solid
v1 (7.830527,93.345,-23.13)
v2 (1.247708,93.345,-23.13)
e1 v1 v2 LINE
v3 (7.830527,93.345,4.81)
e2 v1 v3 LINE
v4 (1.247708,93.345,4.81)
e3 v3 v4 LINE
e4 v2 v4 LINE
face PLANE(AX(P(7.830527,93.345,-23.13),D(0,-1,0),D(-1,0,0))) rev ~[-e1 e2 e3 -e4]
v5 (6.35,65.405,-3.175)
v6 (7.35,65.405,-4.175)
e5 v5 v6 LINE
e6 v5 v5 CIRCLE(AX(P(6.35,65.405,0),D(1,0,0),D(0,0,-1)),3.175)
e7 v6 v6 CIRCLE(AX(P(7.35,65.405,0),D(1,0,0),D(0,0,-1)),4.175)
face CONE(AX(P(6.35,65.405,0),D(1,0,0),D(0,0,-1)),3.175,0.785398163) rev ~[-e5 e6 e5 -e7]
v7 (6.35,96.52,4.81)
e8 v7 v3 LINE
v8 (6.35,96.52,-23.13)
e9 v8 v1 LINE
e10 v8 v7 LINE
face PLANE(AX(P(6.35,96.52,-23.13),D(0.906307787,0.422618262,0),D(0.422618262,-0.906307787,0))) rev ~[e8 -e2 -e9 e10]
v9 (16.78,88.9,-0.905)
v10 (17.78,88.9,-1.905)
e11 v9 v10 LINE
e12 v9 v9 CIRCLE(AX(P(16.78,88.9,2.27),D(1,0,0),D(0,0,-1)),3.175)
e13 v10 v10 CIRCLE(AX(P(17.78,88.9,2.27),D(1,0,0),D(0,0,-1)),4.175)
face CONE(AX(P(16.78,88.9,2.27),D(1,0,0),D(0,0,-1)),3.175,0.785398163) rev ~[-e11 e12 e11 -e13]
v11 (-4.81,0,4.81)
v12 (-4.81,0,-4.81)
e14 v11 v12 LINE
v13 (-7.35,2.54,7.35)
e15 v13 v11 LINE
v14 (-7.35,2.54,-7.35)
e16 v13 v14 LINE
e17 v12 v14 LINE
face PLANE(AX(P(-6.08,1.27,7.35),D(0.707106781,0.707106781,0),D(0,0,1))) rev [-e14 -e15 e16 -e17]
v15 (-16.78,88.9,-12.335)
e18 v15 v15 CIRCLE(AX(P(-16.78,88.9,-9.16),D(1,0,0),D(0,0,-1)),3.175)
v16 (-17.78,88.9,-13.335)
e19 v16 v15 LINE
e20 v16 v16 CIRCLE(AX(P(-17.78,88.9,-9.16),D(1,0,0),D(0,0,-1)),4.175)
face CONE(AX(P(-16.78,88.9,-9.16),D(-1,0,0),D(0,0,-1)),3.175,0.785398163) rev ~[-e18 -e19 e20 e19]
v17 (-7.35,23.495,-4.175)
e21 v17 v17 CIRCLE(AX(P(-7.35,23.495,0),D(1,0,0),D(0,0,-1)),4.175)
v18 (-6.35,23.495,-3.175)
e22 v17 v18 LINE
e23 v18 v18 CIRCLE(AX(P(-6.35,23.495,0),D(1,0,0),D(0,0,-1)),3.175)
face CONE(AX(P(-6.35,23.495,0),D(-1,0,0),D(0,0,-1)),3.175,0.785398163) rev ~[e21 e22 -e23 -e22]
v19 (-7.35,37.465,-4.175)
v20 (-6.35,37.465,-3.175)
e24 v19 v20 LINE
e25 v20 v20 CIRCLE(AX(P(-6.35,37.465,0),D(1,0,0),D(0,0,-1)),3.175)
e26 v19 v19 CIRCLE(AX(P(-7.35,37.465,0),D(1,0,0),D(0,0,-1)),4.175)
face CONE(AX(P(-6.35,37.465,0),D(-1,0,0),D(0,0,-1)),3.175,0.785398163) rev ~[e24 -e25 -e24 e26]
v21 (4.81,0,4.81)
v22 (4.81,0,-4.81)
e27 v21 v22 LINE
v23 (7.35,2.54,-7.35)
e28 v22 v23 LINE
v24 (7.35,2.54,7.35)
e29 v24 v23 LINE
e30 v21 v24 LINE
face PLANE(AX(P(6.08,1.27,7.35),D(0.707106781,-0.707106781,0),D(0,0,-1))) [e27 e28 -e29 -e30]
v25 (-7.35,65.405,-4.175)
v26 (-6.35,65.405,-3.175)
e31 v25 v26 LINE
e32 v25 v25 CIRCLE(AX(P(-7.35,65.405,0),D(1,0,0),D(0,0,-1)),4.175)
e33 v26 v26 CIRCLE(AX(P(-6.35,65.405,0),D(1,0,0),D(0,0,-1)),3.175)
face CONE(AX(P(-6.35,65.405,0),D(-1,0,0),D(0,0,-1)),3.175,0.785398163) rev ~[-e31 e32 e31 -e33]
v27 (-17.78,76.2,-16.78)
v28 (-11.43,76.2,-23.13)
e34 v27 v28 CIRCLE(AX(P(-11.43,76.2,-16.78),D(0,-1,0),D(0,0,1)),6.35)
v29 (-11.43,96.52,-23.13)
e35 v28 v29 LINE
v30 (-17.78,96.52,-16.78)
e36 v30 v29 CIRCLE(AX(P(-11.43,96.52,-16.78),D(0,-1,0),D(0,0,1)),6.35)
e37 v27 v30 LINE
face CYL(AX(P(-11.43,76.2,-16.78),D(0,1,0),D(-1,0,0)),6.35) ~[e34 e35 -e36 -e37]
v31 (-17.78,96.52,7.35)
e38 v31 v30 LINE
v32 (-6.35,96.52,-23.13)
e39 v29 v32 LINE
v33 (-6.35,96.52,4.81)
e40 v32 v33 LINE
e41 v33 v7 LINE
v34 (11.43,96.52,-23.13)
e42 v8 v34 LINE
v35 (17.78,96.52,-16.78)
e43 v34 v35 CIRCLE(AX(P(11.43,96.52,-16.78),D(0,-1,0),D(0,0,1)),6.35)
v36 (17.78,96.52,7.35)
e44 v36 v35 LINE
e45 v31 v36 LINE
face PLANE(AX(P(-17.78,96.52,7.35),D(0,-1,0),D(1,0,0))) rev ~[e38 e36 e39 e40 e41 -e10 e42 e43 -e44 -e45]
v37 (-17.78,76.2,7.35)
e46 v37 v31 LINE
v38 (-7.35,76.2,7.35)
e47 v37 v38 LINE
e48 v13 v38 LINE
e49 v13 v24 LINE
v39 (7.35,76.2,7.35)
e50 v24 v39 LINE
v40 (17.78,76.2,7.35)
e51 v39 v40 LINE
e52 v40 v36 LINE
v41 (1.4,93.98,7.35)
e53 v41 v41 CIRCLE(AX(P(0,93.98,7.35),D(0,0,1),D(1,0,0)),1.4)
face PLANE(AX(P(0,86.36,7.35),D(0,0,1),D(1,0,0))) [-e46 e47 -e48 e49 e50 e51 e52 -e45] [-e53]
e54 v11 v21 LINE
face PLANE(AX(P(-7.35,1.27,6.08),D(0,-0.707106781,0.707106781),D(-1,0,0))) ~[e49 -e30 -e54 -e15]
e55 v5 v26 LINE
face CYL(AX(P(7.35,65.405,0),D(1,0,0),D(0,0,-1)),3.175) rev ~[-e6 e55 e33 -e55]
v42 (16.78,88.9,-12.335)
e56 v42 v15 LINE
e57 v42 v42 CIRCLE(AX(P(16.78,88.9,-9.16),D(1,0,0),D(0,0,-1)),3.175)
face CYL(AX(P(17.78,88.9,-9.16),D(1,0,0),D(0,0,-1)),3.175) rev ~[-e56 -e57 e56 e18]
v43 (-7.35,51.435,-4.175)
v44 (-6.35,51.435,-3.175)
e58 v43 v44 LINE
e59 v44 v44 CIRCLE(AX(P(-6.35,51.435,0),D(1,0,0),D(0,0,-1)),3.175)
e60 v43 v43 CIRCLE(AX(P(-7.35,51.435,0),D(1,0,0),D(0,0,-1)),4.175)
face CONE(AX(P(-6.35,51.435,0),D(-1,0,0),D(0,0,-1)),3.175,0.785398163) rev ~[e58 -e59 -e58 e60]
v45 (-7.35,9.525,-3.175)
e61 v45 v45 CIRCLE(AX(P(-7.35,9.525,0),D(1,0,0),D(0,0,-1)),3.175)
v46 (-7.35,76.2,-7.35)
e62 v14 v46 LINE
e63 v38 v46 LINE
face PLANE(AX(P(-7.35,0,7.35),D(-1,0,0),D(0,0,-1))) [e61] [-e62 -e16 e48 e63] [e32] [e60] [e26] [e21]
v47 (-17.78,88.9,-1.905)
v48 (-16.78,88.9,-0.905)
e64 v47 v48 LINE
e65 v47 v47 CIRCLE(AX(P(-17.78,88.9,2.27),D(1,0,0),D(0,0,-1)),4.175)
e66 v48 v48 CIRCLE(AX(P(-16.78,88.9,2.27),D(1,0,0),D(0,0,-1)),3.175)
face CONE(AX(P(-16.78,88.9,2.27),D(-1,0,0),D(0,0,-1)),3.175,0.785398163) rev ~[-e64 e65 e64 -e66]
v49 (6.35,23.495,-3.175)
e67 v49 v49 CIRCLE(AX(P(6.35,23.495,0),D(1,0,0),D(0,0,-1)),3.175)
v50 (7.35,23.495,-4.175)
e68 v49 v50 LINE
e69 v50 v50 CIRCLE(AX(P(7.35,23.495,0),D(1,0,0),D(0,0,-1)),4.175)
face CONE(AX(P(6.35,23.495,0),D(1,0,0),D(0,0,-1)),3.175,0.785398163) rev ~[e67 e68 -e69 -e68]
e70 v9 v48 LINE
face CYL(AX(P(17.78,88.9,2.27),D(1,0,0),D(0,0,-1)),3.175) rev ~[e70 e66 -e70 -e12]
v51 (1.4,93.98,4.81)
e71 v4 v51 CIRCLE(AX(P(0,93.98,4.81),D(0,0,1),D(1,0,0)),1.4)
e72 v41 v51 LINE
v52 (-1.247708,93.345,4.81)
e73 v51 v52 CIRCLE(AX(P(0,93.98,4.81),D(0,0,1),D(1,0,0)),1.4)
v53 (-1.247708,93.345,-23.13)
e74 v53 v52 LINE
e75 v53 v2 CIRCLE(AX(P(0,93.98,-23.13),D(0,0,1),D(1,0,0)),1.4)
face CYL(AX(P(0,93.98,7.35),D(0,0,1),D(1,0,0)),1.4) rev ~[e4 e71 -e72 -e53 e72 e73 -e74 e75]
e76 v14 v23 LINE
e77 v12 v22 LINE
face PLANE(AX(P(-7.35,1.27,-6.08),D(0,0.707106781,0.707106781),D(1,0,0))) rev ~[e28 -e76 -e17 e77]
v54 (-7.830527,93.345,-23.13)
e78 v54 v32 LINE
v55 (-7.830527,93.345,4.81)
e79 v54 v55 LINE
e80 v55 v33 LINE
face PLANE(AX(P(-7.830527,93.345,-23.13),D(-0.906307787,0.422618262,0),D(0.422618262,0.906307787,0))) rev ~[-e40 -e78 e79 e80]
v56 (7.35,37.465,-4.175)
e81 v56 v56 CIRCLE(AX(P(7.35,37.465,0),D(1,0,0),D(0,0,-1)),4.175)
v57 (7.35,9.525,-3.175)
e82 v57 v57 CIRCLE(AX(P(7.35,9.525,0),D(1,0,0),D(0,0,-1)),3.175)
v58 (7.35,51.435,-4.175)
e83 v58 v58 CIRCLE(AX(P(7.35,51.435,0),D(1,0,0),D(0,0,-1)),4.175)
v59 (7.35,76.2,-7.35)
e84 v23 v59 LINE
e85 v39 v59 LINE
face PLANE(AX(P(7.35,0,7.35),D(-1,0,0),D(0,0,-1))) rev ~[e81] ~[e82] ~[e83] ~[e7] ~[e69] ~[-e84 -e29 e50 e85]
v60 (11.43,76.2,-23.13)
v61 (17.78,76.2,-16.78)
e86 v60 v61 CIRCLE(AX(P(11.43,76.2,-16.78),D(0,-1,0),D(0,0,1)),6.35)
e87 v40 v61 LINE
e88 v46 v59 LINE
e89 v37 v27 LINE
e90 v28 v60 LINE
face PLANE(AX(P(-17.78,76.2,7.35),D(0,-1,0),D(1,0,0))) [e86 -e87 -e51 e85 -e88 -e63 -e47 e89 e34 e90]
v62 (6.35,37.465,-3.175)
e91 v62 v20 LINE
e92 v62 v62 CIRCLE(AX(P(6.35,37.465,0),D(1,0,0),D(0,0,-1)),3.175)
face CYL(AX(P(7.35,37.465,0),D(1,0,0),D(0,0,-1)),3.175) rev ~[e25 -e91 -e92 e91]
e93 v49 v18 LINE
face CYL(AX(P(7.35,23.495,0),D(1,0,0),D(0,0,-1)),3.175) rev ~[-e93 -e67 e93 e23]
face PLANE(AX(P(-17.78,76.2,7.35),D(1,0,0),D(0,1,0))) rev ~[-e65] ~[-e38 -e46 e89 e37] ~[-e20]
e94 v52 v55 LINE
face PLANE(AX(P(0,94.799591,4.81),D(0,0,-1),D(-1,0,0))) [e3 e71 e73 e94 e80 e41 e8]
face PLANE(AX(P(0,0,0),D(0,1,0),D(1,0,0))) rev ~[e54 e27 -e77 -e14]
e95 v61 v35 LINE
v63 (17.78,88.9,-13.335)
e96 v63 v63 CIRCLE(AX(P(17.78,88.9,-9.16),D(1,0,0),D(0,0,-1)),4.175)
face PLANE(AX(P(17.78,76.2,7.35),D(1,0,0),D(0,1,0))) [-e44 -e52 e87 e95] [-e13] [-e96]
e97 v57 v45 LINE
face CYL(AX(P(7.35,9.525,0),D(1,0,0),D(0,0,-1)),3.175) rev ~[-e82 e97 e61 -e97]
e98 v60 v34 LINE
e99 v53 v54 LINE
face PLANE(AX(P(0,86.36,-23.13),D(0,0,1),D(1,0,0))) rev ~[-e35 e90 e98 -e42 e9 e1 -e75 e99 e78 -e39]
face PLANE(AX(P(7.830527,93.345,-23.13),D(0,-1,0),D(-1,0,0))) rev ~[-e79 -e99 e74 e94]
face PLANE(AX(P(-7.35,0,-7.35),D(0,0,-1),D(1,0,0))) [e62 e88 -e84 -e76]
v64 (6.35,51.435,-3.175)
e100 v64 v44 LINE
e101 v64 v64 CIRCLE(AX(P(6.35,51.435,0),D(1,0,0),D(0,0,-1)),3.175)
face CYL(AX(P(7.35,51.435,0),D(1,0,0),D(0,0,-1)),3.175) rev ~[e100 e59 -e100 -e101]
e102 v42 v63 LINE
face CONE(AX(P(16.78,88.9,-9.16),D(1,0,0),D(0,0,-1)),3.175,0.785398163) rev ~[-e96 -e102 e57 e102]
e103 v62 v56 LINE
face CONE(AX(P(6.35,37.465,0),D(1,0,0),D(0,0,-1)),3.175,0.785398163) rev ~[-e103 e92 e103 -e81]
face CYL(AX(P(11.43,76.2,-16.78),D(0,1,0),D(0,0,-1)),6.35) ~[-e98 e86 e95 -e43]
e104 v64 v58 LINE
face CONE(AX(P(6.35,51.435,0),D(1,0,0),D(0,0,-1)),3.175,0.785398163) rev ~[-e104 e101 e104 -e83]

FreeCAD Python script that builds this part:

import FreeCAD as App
import Part
import Sketcher

V = App.Vector
Q = App.Units.Quantity


def edges_at(feature, points):
    """Names of the edges that pass closest to the given points."""
    edges = feature.Shape.Edges
    near = lambda p: min(range(len(edges)), key=lambda i: edges[i].distToShape(Part.Vertex(*p))[0])
    return sorted({f"Edge{near(p) + 1}" for p in points})

doc = App.newDocument("Part")
body = doc.addObject("PartDesign::Body", "Body")

sketch1 = body.newObject("Sketcher::SketchObject", "Sketch")
sketch1.AttachmentSupport = (doc.getObject("XZ_Plane"), [""])
sketch1.MapMode = "FlatFace"
sketch1.addGeometry([
    Part.LineSegment(V(-7, -7, 0), V(-7, 7, 0)),
    Part.LineSegment(V(-7, 7, 0), V(7, 7, 0)),
    Part.LineSegment(V(7, 7, 0), V(7, -7, 0)),
    Part.LineSegment(V(7, -7, 0), V(-7, -7, 0)),
], False)
sketch1.addConstraint([
    Sketcher.Constraint("Coincident", 0, 2, 1, 1),
    Sketcher.Constraint("Coincident", 1, 2, 2, 1),
    Sketcher.Constraint("Coincident", 2, 2, 3, 1),
    Sketcher.Constraint("Coincident", 3, 2, 0, 1),
    Sketcher.Constraint("Vertical", 0),
    Sketcher.Constraint("Horizontal", 1),
    Sketcher.Constraint("Vertical", 2),
    Sketcher.Constraint("Horizontal", 3),
    Sketcher.Constraint("Symmetric", 0, 2, 2, 2, -1, 1),
    Sketcher.Constraint("Equal", 3, 0),
    Sketcher.Constraint("DistanceX", 1, 1, 1, 2, 14.7),
])
pad1 = body.newObject("PartDesign::Pad", "Pad")
pad1.Profile = sketch1
pad1.Length = Q("3 in")
pad1.Reversed = True

sketch2 = body.newObject("Sketcher::SketchObject", "Sketch001")
sketch2.AttachmentSupport = (doc.getObject("YZ_Plane"), [""])
sketch2.MapMode = "FlatFace"
sketch2.AttachmentOffset = App.Placement(V(0, 0, 7.35), App.Rotation())
sketch2.addGeometry([
    Part.Circle(V(65.4, 0, 0), V(0, 0, 1), 3.2),
    Part.Circle(V(51.4, 0, 0), V(0, 0, 1), 3.2),
    Part.Circle(V(37.5, 0, 0), V(0, 0, 1), 3.2),
    Part.Circle(V(23.5, 0, 0), V(0, 0, 1), 3.2),
    Part.Circle(V(9.5, 0, 0), V(0, 0, 1), 3.2),
], False)
sketch2.addConstraint([
    Sketcher.Constraint("Equal", 0, 1),
    Sketcher.Constraint("Equal", 1, 2),
    Sketcher.Constraint("Equal", 2, 3),
    Sketcher.Constraint("Equal", 3, 4),
    Sketcher.Constraint("PointOnObject", 0, 3, -1),
    Sketcher.Constraint("PointOnObject", 1, 3, -1),
    Sketcher.Constraint("PointOnObject", 2, 3, -1),
    Sketcher.Constraint("PointOnObject", 3, 3, -1),
    Sketcher.Constraint("PointOnObject", 4, 3, -1),
    Sketcher.Constraint("Diameter", 0, Q("0.25 in")),
    Sketcher.Constraint("DistanceX", 2, 3, 0, 3, Q("1.1 in")),
    Sketcher.Constraint("DistanceX", 3, 3, 1, 3, Q("1.1 in")),
    Sketcher.Constraint("DistanceX", 4, 3, 2, 3, Q("1.1 in")),
    Sketcher.Constraint("DistanceX", 1, 3, 0, 3, Q("0.55 in")),
    Sketcher.Constraint("DistanceX", -1, 1, 0, 3, Q("2.575 in")),
])
pocket1 = body.newObject("PartDesign::Pocket", "Pocket")
pocket1.Profile = sketch2
pocket1.Type = "ThroughAll"
doc.recompute()

chamfer = body.newObject("PartDesign::Chamfer", "Chamfer")
chamfer.Base = (pocket1, edges_at(pocket1, [
    (-7.35, 65.405, 3.175),
    (7.35, 65.405, 3.175),
    (-7.35, 51.435, 3.175),
    (7.35, 51.435, 3.175),
    (-7.35, 37.465, 3.175),
    (7.35, 37.465, 3.175),
    (-7.35, 23.495, 3.175),
    (7.35, 23.495, 3.175),
]))
chamfer.Size = 1
doc.recompute()

chamfer2 = body.newObject("PartDesign::Chamfer", "Chamfer001")
chamfer2.Base = (chamfer, edges_at(chamfer, [
    (0, 0, -7.35),
    (7.35, 0, 0),
    (0, 0, 7.35),
    (-7.35, 0, 0),
]))
chamfer2.Size = Q("0.1 in")

sketch3 = body.newObject("Sketcher::SketchObject", "Sketch002")
sketch3.AttachmentSupport = (doc.getObject("XY_Plane"), [""])
sketch3.MapMode = "FlatFace"
sketch3.AttachmentOffset = App.Placement(V(0, 0, 7.35), App.Rotation())
sketch3.addGeometry([
    Part.LineSegment(V(-18, 97, 0), V(-18, 76, 0)),
    Part.LineSegment(V(-18, 76, 0), V(18, 76, 0)),
    Part.LineSegment(V(18, 76, 0), V(18, 97, 0)),
    Part.LineSegment(V(18, 97, 0), V(-18, 97, 0)),
], False)
sketch3.addConstraint([
    Sketcher.Constraint("Coincident", 0, 2, 1, 1),
    Sketcher.Constraint("Coincident", 1, 2, 2, 1),
    Sketcher.Constraint("Coincident", 2, 2, 3, 1),
    Sketcher.Constraint("Coincident", 3, 2, 0, 1),
    Sketcher.Constraint("Vertical", 0),
    Sketcher.Constraint("Horizontal", 1),
    Sketcher.Constraint("Vertical", 2),
    Sketcher.Constraint("Horizontal", 3),
    Sketcher.Constraint("DistanceX", 1, 1, 1, 2, Q("1.4 in")),
    Sketcher.Constraint("DistanceY", 0, 2, 0, 1, Q("0.8 in")),
    Sketcher.Constraint("DistanceY", -1, 1, 0, 2, Q("3 in")),
    Sketcher.Constraint("DistanceX", 0, 2, -1, 1, Q("0.7 in")),
])
pad2 = body.newObject("PartDesign::Pad", "Pad001")
pad2.Profile = sketch3
pad2.Length = Q("1.2 in")
pad2.Reversed = True

sketch4 = body.newObject("Sketcher::SketchObject", "Sketch003")
sketch4.AttachmentSupport = (doc.getObject("YZ_Plane"), [""])
sketch4.MapMode = "FlatFace"
sketch4.AttachmentOffset = App.Placement(V(0, 0, 0.7 * 25.4), App.Rotation())
sketch4.addGeometry([
    Part.Circle(V(88.9, -9.2, 0), V(0, 0, 1), 3.2),
    Part.Circle(V(88.9, 2.3, 0), V(0, 0, 1), 3.2),
], False)
sketch4.addConstraint([
    Sketcher.Constraint("Equal", 0, 1),
    Sketcher.Constraint("Vertical", 0, 3, 1, 3),
    Sketcher.Constraint("Diameter", 0, Q("0.25 in")),
    Sketcher.Constraint("DistanceX", -1, 1, 0, 3, Q("3.5 in")),
    Sketcher.Constraint("DistanceY", 0, 3, 1, 3, Q("0.45 in")),
    Sketcher.Constraint("DistanceY", 0, 3, -1, 1, 9.16),
])
pocket2 = body.newObject("PartDesign::Pocket", "Pocket001")
pocket2.Profile = sketch4
pocket2.Type = "ThroughAll"
doc.recompute()

chamfer3 = body.newObject("PartDesign::Chamfer", "Chamfer002")
chamfer3.Base = (pocket2, edges_at(pocket2, [
    (-17.78, 88.9, -5.985),
    (17.78, 88.9, -5.985),
    (-17.78, 88.9, 5.445),
    (17.78, 88.9, 5.445),
]))
chamfer3.Size = 1

sketch5 = body.newObject("Sketcher::SketchObject", "Sketch004")
sketch5.AttachmentSupport = (doc.getObject("XY_Plane"), [""])
sketch5.MapMode = "FlatFace"
sketch5.AttachmentOffset = App.Placement(V(0, 0, -23.13), App.Rotation())
sketch5.addGeometry([
    Part.LineSegment(V(6.3, 96.5, 0), V(7.8, 93.3, 0)),
    Part.LineSegment(V(7.8, 93.3, 0), V(-7.8, 93.3, 0)),
    Part.LineSegment(V(-7.8, 93.3, 0), V(-6.3, 96.5, 0)),
    Part.LineSegment(V(-6.3, 96.5, 0), V(6.3, 96.5, 0)),
], False)
sketch5.addConstraint([
    Sketcher.Constraint("Coincident", 0, 2, 1, 1),
    Sketcher.Constraint("Coincident", 1, 2, 2, 1),
    Sketcher.Constraint("Coincident", 2, 2, 3, 1),
    Sketcher.Constraint("Coincident", 3, 2, 0, 1),
    Sketcher.Constraint("Horizontal", 1),
    Sketcher.Constraint("Horizontal", 3),
    Sketcher.Constraint("Equal", 0, 2),
    Sketcher.Constraint("DistanceX", 3, 1, 3, 2, Q("0.5 in")),
    Sketcher.Constraint("Angle", 0, Q("-65 deg")),
    Sketcher.Constraint("DistanceY", -1, 1, 2, 2, Q("3.8 in")),
    Sketcher.Constraint("DistanceX", 2, 2, -1, 1, Q("0.25 in")),
    Sketcher.Constraint("DistanceY", -1, 1, 0, 2, Q("3.675 in")),
])
pocket3 = body.newObject("PartDesign::Pocket", "Pocket002")
pocket3.Profile = sketch5
pocket3.Length = Q("1.1 in")
pocket3.Reversed = True
doc.recompute()

fillet = body.newObject("PartDesign::Fillet", "Fillet")
fillet.Base = (pocket3, edges_at(pocket3, [(-17.78, 86.36, -23.13), (17.78, 86.36, -23.13)]))
fillet.Radius = Q("0.25 in")

sketch6 = body.newObject("Sketcher::SketchObject", "Sketch005")
sketch6.AttachmentSupport = (doc.getObject("XY_Plane"), [""])
sketch6.MapMode = "FlatFace"
sketch6.AttachmentOffset = App.Placement(V(0, 0, 7.35), App.Rotation())
sketch6.addGeometry(Part.Circle(V(0, 94, 0), V(0, 0, 1), 1.4), False)
sketch6.addConstraint([
    Sketcher.Constraint("PointOnObject", 0, 3, -2),
    Sketcher.Constraint("DistanceY", -1, 1, 0, 3, Q("3.7 in")),
    Sketcher.Constraint("Diameter", 0, 2.8),
])
pocket4 = body.newObject("PartDesign::Pocket", "Pocket003")
pocket4.Profile = sketch6
pocket4.Type = "ThroughAll"

doc.recompute()
